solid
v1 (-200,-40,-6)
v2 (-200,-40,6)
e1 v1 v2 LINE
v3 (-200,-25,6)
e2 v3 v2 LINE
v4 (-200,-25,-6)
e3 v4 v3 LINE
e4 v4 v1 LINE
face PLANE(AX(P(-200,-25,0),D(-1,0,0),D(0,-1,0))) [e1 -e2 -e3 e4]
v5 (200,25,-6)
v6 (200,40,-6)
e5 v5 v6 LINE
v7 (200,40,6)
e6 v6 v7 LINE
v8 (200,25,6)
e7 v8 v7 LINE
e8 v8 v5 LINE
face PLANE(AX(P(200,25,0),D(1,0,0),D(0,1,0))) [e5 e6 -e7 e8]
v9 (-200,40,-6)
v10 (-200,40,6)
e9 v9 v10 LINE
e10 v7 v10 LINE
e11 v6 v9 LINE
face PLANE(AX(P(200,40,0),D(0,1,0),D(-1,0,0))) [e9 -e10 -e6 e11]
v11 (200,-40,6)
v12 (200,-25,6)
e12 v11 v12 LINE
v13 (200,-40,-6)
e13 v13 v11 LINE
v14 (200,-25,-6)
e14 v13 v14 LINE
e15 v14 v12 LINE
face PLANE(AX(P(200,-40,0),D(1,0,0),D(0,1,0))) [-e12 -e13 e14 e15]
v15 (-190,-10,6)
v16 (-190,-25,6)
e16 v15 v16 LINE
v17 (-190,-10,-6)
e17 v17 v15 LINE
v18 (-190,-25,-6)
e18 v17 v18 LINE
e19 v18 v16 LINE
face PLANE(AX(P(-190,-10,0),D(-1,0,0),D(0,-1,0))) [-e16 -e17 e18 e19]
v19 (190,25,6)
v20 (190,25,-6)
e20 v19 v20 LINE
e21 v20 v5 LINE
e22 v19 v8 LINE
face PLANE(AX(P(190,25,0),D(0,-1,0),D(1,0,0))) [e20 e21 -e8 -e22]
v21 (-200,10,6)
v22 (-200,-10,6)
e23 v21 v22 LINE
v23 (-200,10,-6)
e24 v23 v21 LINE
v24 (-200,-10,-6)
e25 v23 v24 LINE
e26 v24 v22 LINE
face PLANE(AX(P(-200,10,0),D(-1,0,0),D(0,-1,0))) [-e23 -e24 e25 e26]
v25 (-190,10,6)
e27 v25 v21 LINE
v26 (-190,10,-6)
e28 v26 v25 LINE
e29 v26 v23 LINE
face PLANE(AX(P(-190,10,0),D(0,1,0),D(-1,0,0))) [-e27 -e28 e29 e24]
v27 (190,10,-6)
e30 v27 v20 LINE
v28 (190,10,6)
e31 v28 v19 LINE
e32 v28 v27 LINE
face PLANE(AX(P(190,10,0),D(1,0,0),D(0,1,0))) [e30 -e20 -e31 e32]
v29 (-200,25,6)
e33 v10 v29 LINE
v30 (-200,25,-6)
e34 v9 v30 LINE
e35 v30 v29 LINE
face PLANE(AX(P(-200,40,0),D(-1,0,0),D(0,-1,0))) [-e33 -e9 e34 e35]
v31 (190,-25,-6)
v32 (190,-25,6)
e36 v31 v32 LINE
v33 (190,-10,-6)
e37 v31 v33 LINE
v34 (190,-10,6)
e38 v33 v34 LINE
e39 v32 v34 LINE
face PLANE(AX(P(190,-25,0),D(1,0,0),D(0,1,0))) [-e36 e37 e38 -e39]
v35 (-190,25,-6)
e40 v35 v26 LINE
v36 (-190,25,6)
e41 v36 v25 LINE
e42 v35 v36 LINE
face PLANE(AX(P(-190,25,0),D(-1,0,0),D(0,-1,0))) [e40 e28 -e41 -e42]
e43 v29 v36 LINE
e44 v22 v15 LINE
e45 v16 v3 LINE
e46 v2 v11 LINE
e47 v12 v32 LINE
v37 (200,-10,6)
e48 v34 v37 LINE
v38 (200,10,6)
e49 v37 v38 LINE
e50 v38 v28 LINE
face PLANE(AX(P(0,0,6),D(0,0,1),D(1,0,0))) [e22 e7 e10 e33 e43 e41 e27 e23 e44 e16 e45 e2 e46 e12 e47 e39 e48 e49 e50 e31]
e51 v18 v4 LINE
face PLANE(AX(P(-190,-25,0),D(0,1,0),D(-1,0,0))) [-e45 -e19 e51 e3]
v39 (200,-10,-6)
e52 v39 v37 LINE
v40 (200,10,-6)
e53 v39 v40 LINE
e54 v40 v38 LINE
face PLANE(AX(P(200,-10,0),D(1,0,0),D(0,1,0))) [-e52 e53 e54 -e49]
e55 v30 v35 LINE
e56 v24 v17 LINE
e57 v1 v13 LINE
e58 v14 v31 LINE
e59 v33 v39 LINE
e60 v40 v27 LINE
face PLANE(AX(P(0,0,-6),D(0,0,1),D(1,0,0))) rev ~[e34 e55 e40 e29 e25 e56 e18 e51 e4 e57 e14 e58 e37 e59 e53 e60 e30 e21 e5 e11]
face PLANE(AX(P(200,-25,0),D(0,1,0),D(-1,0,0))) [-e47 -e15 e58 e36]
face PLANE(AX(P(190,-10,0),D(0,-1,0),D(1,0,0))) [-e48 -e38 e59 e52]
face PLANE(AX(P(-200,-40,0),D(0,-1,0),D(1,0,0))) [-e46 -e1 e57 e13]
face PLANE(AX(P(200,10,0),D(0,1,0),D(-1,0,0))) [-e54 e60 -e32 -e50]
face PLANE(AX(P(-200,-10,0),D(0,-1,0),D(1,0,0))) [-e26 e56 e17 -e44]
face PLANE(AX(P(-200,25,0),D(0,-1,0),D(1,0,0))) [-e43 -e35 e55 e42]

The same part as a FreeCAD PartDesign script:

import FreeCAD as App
import Part
import Sketcher

doc = App.newDocument("Part")
params = doc.addObject("Spreadsheet::Sheet", "Params")
for row, (alias, value) in enumerate([
    ("sketch1_width", "400 mm"),
    ("sketch1_width2", "10 mm"),
    ("sketch1_height", "15 mm"),
    ("sketch1_height2", "20 mm"),
    ("pad1_length", "12 mm"),
], start=1):
    params.set(f"A{row}", alias)
    params.set(f"B{row}", "=" + value)
    params.setAlias(f"B{row}", alias)

body = doc.addObject("PartDesign::Body", "Body")

# Sketch on XY plane
sketch1 = body.newObject("Sketcher::SketchObject", "Sketch")
sketch1.AttachmentSupport = (doc.getObject("XY_Plane"), [""])
sketch1.MapMode = "FlatFace"
sketch1.addGeometry([
    Part.LineSegment(App.Vector(200, 25, 0), App.Vector(200, 40, 0)),  # 0
    Part.LineSegment(App.Vector(200, 40, 0), App.Vector(-200, 40, 0)),  # 1
    Part.LineSegment(App.Vector(-200, 40, 0), App.Vector(-200, 25, 0)),  # 2
    Part.LineSegment(App.Vector(-200, 25, 0), App.Vector(-190, 25, 0)),  # 3
    Part.LineSegment(App.Vector(-190, 25, 0), App.Vector(-190, 10, 0)),  # 4
    Part.LineSegment(App.Vector(-190, 10, 0), App.Vector(-200, 10, 0)),  # 5
    Part.LineSegment(App.Vector(-200, 10, 0), App.Vector(-200, -10, 0)),  # 6
    Part.LineSegment(App.Vector(-200, -10, 0), App.Vector(-190, -10, 0)),  # 7
    Part.LineSegment(App.Vector(-190, -10, 0), App.Vector(-190, -25, 0)),  # 8
    Part.LineSegment(App.Vector(-190, -25, 0), App.Vector(-200, -25, 0)),  # 9
    Part.LineSegment(App.Vector(-200, -25, 0), App.Vector(-200, -40, 0)),  # 10
    Part.LineSegment(App.Vector(-200, -40, 0), App.Vector(200, -40, 0)),  # 11
    Part.LineSegment(App.Vector(200, -40, 0), App.Vector(200, -25, 0)),  # 12
    Part.LineSegment(App.Vector(200, -25, 0), App.Vector(190, -25, 0)),  # 13
    Part.LineSegment(App.Vector(190, -25, 0), App.Vector(190, -10, 0)),  # 14
    Part.LineSegment(App.Vector(190, -10, 0), App.Vector(200, -10, 0)),  # 15
    Part.LineSegment(App.Vector(200, -10, 0), App.Vector(200, 10, 0)),  # 16
    Part.LineSegment(App.Vector(200, 10, 0), App.Vector(190, 10, 0)),  # 17
    Part.LineSegment(App.Vector(190, 10, 0), App.Vector(190, 25, 0)),  # 18
    Part.LineSegment(App.Vector(190, 25, 0), App.Vector(200, 25, 0)),  # 19
], False)
sketch1.addConstraint([
    Sketcher.Constraint("Coincident", 0, 2, 1, 1),
    Sketcher.Constraint("Coincident", 1, 2, 2, 1),
    Sketcher.Constraint("Coincident", 2, 2, 3, 1),
    Sketcher.Constraint("Coincident", 3, 2, 4, 1),
    Sketcher.Constraint("Coincident", 4, 2, 5, 1),
    Sketcher.Constraint("Coincident", 5, 2, 6, 1),
    Sketcher.Constraint("Coincident", 6, 2, 7, 1),
    Sketcher.Constraint("Coincident", 7, 2, 8, 1),
    Sketcher.Constraint("Coincident", 8, 2, 9, 1),
    Sketcher.Constraint("Coincident", 9, 2, 10, 1),
    Sketcher.Constraint("Coincident", 10, 2, 11, 1),
    Sketcher.Constraint("Coincident", 11, 2, 12, 1),
    Sketcher.Constraint("Coincident", 12, 2, 13, 1),
    Sketcher.Constraint("Coincident", 13, 2, 14, 1),
    Sketcher.Constraint("Coincident", 14, 2, 15, 1),
    Sketcher.Constraint("Coincident", 15, 2, 16, 1),
    Sketcher.Constraint("Coincident", 16, 2, 17, 1),
    Sketcher.Constraint("Coincident", 17, 2, 18, 1),
    Sketcher.Constraint("Coincident", 18, 2, 19, 1),
    Sketcher.Constraint("Coincident", 19, 2, 0, 1),
    Sketcher.Constraint("Vertical", 0),
    Sketcher.Constraint("Horizontal", 1),
    Sketcher.Constraint("Vertical", 2),
    Sketcher.Constraint("Horizontal", 3),
    Sketcher.Constraint("Vertical", 4),
    Sketcher.Constraint("Horizontal", 5),
    Sketcher.Constraint("Vertical", 6),
    Sketcher.Constraint("Horizontal", 7),
    Sketcher.Constraint("Vertical", 8),
    Sketcher.Constraint("Horizontal", 9),
    Sketcher.Constraint("Vertical", 10),
    Sketcher.Constraint("Horizontal", 11),
    Sketcher.Constraint("Vertical", 12),
    Sketcher.Constraint("Horizontal", 13),
    Sketcher.Constraint("Vertical", 14),
    Sketcher.Constraint("Horizontal", 15),
    Sketcher.Constraint("Vertical", 16),
    Sketcher.Constraint("Horizontal", 17),
    Sketcher.Constraint("Vertical", 18),
    Sketcher.Constraint("Horizontal", 19),
    Sketcher.Constraint("Symmetric", 0, 2, 10, 2, -1, 1),
    Sketcher.Constraint("Symmetric", 2, 2, 12, 2, -1, 1),
    Sketcher.Constraint("Symmetric", 4, 2, 14, 2, -1, 1),
    Sketcher.Constraint("Symmetric", 6, 2, 16, 2, -1, 1),
    Sketcher.Constraint("Symmetric", 8, 2, 18, 2, -1, 1),
    Sketcher.Constraint("Symmetric", 9, 2, 12, 2, -2),
    Sketcher.Constraint("Symmetric", 7, 2, 14, 2, -2),
    Sketcher.Constraint("Vertical", 2, 2, 5, 2),
    Sketcher.Constraint("Equal", 2, 4),
    Sketcher.Constraint("DistanceX", 1, 2, 1, 1, 400.0),
    Sketcher.Constraint("DistanceX", 3, 1, 3, 2, 10.0),
    Sketcher.Constraint("DistanceY", 0, 1, 0, 2, 15.0),
    Sketcher.Constraint("DistanceY", 6, 2, 6, 1, 20.0),
])
sketch1.setExpression("Constraints[49]", "Params.sketch1_width")
sketch1.setExpression("Constraints[50]", "Params.sketch1_width2")
sketch1.setExpression("Constraints[51]", "Params.sketch1_height")
sketch1.setExpression("Constraints[52]", "Params.sketch1_height2")
pad1 = body.newObject("PartDesign::Pad", "Pad")
pad1.Profile = sketch1
pad1.setExpression("Length", "Params.pad1_length")
pad1.Midplane = True

doc.recompute()
